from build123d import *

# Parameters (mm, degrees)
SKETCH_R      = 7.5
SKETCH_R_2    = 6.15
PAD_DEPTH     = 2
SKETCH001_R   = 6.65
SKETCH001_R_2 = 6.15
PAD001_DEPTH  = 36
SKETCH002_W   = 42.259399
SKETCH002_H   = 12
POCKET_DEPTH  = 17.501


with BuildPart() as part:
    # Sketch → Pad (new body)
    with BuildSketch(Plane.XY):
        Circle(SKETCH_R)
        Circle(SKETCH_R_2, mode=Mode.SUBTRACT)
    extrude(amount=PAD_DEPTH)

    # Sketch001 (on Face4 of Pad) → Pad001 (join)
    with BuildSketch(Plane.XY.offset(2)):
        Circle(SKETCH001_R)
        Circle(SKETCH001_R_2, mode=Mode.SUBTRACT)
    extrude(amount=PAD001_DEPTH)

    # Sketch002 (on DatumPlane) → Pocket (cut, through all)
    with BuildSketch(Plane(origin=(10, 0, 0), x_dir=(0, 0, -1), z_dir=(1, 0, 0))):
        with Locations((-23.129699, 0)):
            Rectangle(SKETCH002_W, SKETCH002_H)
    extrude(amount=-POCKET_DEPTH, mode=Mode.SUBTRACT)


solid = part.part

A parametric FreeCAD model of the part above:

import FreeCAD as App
import Part
import Sketcher

V = App.Vector

doc = App.newDocument("Part")
body = doc.addObject("PartDesign::Body", "Body")

# Sketch on XY plane
sketch1 = body.newObject("Sketcher::SketchObject", "Sketch")
sketch1.AttachmentSupport = (doc.getObject("XY_Plane"), [""])
sketch1.MapMode = "FlatFace"
sketch1.addGeometry(Part.Circle(V(0, 0, 0), V(0, 0, 1), 8), False)
sketch1.addGeometry(Part.Circle(V(0, 0, 0), V(0, 0, 1), 6), False)
sketch1.addConstraint(Sketcher.Constraint("Coincident", 0, 3, -1, 1))
sketch1.addConstraint(Sketcher.Constraint("Coincident", 1, 3, -1, 1))
sketch1.addConstraint(Sketcher.Constraint("Diameter", 0, 15.0))
sketch1.addConstraint(Sketcher.Constraint("Diameter", 1, 12.3))
pad1 = body.newObject("PartDesign::Pad", "Pad")
pad1.Profile = sketch1
pad1.Length = 2

# Sketch on XY plane
sketch2 = body.newObject("Sketcher::SketchObject", "Sketch001")
sketch2.AttachmentSupport = (doc.getObject("XY_Plane"), [""])
sketch2.MapMode = "FlatFace"
sketch2.AttachmentOffset = App.Placement(V(0, 0, 2), App.Rotation())
sketch2.addGeometry(Part.Circle(V(0, 0, 0), V(0, 0, 1), 7), False)
sketch2.addGeometry(Part.Circle(V(0, 0, 0), V(0, 0, 1), 6), False)
sketch2.addConstraint(Sketcher.Constraint("Coincident", 0, 3, -1, 1))
sketch2.addConstraint(Sketcher.Constraint("Coincident", 1, 3, -1, 1))
sketch2.addConstraint(Sketcher.Constraint("Diameter", 0, 13.3))
sketch2.addConstraint(Sketcher.Constraint("Diameter", 1, 12.3))
pad2 = body.newObject("PartDesign::Pad", "Pad001")
pad2.Profile = sketch2
pad2.Length = 36

# Sketch on YZ plane
sketch3 = body.newObject("Sketcher::SketchObject", "Sketch002")
sketch3.AttachmentSupport = (doc.getObject("YZ_Plane"), [""])
sketch3.MapMode = "FlatFace"
sketch3.AttachmentOffset = App.Placement(V(0, 0, 10), App.Rotation())
sketch3.addGeometry(Part.LineSegment(V(6, 44, 0), V(-6, 44, 0)), False)
sketch3.addGeometry(Part.LineSegment(V(-6, 44, 0), V(-6, 2, 0)), False)
sketch3.addGeometry(Part.LineSegment(V(-6, 2, 0), V(6, 2, 0)), False)
sketch3.addGeometry(Part.LineSegment(V(6, 2, 0), V(6, 44, 0)), False)
sketch3.addConstraint(Sketcher.Constraint("Coincident", 0, 2, 1, 1))
sketch3.addConstraint(Sketcher.Constraint("Coincident", 1, 2, 2, 1))
sketch3.addConstraint(Sketcher.Constraint("Coincident", 2, 2, 3, 1))
sketch3.addConstraint(Sketcher.Constraint("Coincident", 3, 2, 0, 1))
sketch3.addConstraint(Sketcher.Constraint("Horizontal", 0))
sketch3.addConstraint(Sketcher.Constraint("Vertical", 1))
sketch3.addConstraint(Sketcher.Constraint("Horizontal", 2))
sketch3.addConstraint(Sketcher.Constraint("Vertical", 3))
sketch3.addConstraint(Sketcher.Constraint("DistanceX", 0, 2, 0, 1, 12.0))
sketch3.addConstraint(Sketcher.Constraint("DistanceX", 0, 2, -1, 1, 6.0))
sketch3.addConstraint(Sketcher.Constraint("DistanceY", -1, 1, 1, 2, 1.999999))
sketch3.addConstraint(Sketcher.Constraint("DistanceY", 1, 2, 1, 1, 42.259399))
pocket1 = body.newObject("PartDesign::Pocket", "Pocket")
pocket1.Profile = sketch3
pocket1.Type = "ThroughAll"

doc.recompute()
